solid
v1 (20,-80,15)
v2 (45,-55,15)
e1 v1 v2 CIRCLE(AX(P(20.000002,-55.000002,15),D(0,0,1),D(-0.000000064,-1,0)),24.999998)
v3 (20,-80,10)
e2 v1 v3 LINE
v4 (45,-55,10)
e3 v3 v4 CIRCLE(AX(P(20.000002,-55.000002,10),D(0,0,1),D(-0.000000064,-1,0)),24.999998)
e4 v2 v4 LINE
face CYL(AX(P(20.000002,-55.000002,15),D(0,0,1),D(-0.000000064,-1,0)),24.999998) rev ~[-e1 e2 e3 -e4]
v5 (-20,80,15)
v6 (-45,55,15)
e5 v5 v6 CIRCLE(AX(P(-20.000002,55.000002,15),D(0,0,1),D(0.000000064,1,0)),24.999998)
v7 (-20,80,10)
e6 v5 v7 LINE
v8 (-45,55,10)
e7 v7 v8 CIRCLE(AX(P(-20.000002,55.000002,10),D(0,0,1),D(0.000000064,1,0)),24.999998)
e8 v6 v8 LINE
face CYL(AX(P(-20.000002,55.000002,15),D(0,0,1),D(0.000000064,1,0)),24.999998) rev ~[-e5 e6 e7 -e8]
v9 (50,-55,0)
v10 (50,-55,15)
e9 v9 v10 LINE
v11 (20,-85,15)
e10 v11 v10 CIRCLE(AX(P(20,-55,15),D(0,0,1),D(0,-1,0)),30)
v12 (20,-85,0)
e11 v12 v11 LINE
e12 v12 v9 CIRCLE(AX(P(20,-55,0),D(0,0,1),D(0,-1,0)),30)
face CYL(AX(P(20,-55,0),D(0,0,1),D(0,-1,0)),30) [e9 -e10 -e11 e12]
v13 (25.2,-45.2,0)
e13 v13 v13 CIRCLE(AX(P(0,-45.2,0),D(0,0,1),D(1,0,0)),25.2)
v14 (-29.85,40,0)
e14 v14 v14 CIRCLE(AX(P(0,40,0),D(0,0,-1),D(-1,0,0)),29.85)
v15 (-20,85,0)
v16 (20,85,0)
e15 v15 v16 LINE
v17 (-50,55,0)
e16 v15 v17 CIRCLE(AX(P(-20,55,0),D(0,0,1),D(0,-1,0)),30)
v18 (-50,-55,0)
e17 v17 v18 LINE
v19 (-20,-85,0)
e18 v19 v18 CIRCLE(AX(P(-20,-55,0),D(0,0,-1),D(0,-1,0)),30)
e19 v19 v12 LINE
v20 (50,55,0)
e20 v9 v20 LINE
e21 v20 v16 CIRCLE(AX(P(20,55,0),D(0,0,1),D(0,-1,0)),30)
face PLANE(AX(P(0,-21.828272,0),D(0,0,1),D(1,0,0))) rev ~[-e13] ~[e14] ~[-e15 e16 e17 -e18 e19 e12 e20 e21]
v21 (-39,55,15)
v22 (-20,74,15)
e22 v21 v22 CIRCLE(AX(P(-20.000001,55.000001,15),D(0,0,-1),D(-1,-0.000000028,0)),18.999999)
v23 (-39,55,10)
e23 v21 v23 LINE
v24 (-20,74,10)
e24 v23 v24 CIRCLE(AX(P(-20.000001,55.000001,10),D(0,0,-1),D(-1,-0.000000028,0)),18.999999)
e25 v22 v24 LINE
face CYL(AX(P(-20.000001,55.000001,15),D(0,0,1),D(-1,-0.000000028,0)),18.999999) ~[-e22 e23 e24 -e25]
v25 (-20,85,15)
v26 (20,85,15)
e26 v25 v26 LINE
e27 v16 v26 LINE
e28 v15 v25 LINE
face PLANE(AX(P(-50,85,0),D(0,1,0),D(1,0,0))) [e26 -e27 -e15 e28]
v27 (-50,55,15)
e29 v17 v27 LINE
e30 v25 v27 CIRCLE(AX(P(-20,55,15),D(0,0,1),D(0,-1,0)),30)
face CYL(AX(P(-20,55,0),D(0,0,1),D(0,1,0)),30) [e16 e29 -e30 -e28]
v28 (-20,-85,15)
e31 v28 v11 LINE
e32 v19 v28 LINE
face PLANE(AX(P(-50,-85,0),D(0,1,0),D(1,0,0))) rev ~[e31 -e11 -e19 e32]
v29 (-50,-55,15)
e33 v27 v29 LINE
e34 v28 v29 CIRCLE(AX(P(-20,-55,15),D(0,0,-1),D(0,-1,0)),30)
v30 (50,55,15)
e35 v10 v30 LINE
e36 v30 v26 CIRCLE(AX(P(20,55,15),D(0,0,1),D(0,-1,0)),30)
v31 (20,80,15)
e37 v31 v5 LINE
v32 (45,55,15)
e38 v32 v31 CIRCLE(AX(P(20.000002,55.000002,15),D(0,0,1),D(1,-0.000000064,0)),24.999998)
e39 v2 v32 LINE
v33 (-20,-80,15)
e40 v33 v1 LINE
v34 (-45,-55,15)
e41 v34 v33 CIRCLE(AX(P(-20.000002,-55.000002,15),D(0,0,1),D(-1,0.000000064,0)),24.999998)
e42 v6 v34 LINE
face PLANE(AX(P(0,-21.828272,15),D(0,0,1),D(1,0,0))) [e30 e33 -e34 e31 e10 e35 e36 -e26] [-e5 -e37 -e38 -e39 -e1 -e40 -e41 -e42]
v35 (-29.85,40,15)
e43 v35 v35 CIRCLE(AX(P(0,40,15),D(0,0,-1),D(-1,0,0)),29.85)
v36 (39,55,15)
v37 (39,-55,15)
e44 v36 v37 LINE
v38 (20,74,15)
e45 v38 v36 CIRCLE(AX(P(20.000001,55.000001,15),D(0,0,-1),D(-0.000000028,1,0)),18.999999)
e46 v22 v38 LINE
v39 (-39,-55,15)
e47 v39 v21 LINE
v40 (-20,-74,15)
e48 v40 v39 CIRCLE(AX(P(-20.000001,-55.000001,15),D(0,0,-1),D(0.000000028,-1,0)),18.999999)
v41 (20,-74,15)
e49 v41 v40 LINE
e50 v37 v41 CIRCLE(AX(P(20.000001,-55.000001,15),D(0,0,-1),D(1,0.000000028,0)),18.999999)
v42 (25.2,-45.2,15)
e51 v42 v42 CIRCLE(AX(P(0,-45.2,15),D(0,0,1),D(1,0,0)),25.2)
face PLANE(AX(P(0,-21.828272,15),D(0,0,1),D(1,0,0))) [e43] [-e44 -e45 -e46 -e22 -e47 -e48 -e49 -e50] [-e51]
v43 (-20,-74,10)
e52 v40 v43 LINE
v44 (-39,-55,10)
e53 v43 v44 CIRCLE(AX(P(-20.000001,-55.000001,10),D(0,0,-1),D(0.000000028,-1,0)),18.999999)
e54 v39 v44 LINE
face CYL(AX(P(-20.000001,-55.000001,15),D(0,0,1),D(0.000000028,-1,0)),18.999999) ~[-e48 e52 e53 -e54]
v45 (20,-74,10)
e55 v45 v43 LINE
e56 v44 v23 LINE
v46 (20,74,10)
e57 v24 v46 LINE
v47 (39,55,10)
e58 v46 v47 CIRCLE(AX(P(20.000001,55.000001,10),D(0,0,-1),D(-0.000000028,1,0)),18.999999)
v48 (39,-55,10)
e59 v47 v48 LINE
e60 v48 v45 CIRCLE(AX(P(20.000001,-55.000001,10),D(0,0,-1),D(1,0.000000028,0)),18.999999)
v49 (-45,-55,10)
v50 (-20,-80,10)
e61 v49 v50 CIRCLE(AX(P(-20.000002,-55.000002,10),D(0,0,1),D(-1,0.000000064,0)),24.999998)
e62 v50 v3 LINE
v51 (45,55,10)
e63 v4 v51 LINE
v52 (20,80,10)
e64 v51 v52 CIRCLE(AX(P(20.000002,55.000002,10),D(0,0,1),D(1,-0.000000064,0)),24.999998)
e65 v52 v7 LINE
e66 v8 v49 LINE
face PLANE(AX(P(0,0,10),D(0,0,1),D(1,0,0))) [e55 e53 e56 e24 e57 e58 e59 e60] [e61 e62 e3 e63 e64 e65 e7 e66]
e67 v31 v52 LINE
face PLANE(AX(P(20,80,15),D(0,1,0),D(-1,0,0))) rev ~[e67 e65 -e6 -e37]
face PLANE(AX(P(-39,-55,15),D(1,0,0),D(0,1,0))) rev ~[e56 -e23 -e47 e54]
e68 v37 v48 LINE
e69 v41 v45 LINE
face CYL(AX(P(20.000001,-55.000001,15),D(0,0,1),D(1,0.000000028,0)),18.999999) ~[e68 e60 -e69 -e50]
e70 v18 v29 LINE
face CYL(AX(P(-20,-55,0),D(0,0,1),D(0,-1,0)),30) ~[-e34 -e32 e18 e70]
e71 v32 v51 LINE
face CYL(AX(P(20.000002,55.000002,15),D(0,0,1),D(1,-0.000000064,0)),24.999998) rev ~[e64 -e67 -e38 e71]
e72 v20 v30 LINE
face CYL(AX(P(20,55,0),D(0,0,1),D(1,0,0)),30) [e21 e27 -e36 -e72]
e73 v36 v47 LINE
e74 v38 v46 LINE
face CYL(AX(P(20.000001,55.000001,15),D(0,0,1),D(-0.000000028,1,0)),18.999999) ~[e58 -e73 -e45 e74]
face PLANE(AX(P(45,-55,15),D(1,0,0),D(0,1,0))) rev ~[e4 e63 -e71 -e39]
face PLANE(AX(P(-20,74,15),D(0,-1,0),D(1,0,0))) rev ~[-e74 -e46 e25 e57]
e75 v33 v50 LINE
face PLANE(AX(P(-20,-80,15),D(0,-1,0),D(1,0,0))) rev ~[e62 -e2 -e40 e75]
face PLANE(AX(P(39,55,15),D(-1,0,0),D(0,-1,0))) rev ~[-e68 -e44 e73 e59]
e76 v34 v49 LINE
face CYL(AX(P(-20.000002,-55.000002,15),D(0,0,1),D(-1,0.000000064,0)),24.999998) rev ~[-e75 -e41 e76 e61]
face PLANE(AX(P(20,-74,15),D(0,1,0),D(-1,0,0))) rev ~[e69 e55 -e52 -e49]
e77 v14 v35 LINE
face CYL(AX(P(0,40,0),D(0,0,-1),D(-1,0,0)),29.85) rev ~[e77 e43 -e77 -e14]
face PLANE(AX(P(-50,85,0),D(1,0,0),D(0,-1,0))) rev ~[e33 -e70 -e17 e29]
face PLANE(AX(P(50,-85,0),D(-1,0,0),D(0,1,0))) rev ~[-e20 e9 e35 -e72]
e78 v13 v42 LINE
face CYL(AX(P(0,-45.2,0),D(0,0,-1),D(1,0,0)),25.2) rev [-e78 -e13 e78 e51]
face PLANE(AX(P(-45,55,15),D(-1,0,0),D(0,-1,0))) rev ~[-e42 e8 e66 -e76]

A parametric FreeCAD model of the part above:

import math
import FreeCAD as App
import Part
import Sketcher

V = App.Vector
Q = App.Units.Quantity


def edges_at(feature, points):
    """Names of the edges that pass closest to the given points."""
    edges = feature.Shape.Edges
    near = lambda p: min(range(len(edges)), key=lambda i: edges[i].distToShape(Part.Vertex(*p))[0])
    return sorted({f"Edge{near(p) + 1}" for p in points})


def add_polygon(sketch, points):
    """Adds a closed chain of lines whose ends are joined by coincident constraints."""
    first, n = sketch.GeometryCount, len(points)
    for a, b in zip(points, points[1:] + points[:1]):
        sketch.addGeometry(Part.LineSegment(App.Vector(*a, 0), App.Vector(*b, 0)), False)
    for i in range(n):
        sketch.addConstraint(Sketcher.Constraint("Coincident", first + i, 2, first + (i + 1) % n, 1))

doc = App.newDocument("Part")
body = doc.addObject("PartDesign::Body", "Body")

sketch1 = body.newObject("Sketcher::SketchObject", "Sketch")
sketch1.AttachmentSupport = (doc.getObject("XY_Plane"), [""])
sketch1.MapMode = "FlatFace"
add_polygon(sketch1, [(-50, -85), (50, -85), (50, 85), (-50, 85)])
sketch1.addGeometry(Part.Circle(V(0, 40, 0), V(0, 0, 1), 30), False)
sketch1.addGeometry(Part.Circle(V(0, -45, 0), V(0, 0, 1), 25), False)
sketch1.addConstraint(Sketcher.Constraint("Horizontal", 0))
sketch1.addConstraint(Sketcher.Constraint("Vertical", 1))
sketch1.addConstraint(Sketcher.Constraint("Horizontal", 2))
sketch1.addConstraint(Sketcher.Constraint("Vertical", 3))
sketch1.addConstraint(Sketcher.Constraint("Symmetric", 0, 2, 2, 2, -1, 1))
sketch1.addConstraint(Sketcher.Constraint("PointOnObject", 4, 3, -2))
sketch1.addConstraint(Sketcher.Constraint("PointOnObject", 5, 3, -2))
sketch1.addConstraint(Sketcher.Constraint("Diameter", 4, Q("59.7 mm")))
sketch1.addConstraint(Sketcher.Constraint("Diameter", 5, Q("50.4 mm")))
sketch1.addConstraint(Sketcher.Constraint("DistanceX", 0, 1, 0, 2, Q("100 mm")))
sketch1.addConstraint(Sketcher.Constraint("DistanceY", 1, 1, 1, 2, Q("170 mm")))
sketch1.addConstraint(Sketcher.Constraint("DistanceY", -1, 1, 4, 3, Q("40 mm")))
sketch1.addConstraint(Sketcher.Constraint("DistanceY", 5, 3, -1, 1, Q("45.2 mm")))
pad1 = body.newObject("PartDesign::Pad", "Pad")
pad1.Profile = sketch1
pad1.Length = 15
doc.recompute()

fillet = body.newObject("PartDesign::Fillet", "Fillet")
fillet.Base = (pad1, edges_at(pad1, [
    (-50, 85, 7.5),
    (50, 85, 7.5),
    (-50, -85, 7.5),
    (50, -85, 7.5),
]))
fillet.Radius = 30

sketch2 = body.newObject("Sketcher::SketchObject", "Sketch001")
sketch2.AttachmentSupport = (doc.getObject("XY_Plane"), [""])
sketch2.MapMode = "FlatFace"
sketch2.AttachmentOffset = App.Placement(V(0, 0, 15), App.Rotation())
sketch2.addGeometry(Part.ArcOfCircle(Part.Circle(V(20, 55, 0), V(0, 0, 1), 25), math.radians(0), math.radians(90)), False)
sketch2.addGeometry(Part.LineSegment(V(20, 80, 0), V(-20, 80, 0)), False)
sketch2.addGeometry(Part.ArcOfCircle(Part.Circle(V(-20, 55, 0), V(0, 0, 1), 25), math.radians(90), math.radians(180)), False)
sketch2.addGeometry(Part.LineSegment(V(-45, 55, 0), V(-45, -55, 0)), False)
sketch2.addGeometry(Part.ArcOfCircle(Part.Circle(V(-20, -55, 0), V(0, 0, 1), 25), math.radians(180), math.radians(270)), False)
sketch2.addGeometry(Part.LineSegment(V(-20, -80, 0), V(20, -80, 0)), False)
sketch2.addGeometry(Part.ArcOfCircle(Part.Circle(V(20, -55, 0), V(0, 0, 1), 25), math.radians(-90), math.radians(0)), False)
sketch2.addGeometry(Part.LineSegment(V(45, -55, 0), V(45, 55, 0)), False)
sketch2.addGeometry(Part.ArcOfCircle(Part.Circle(V(-20, 55, 0), V(0, 0, 1), 19), math.radians(90), math.radians(180)), False)
sketch2.addGeometry(Part.LineSegment(V(-20, 74, 0), V(20, 74, 0)), False)
sketch2.addGeometry(Part.ArcOfCircle(Part.Circle(V(20, 55, 0), V(0, 0, 1), 19), math.radians(0), math.radians(90)), False)
sketch2.addGeometry(Part.LineSegment(V(39, 55, 0), V(39, -55, 0)), False)
sketch2.addGeometry(Part.ArcOfCircle(Part.Circle(V(20, -55, 0), V(0, 0, 1), 19), math.radians(-90), math.radians(0)), False)
sketch2.addGeometry(Part.LineSegment(V(20, -74, 0), V(-20, -74, 0)), False)
sketch2.addGeometry(Part.ArcOfCircle(Part.Circle(V(-20, -55, 0), V(0, 0, 1), 19), math.radians(180), math.radians(270)), False)
sketch2.addGeometry(Part.LineSegment(V(-39, -55, 0), V(-39, 55, 0)), False)
sketch2.addConstraint(Sketcher.Constraint("Tangent", 0, 2, 1, 1))
sketch2.addConstraint(Sketcher.Constraint("Tangent", 1, 2, 2, 1))
sketch2.addConstraint(Sketcher.Constraint("Tangent", 2, 2, 3, 1))
sketch2.addConstraint(Sketcher.Constraint("Tangent", 3, 2, 4, 1))
sketch2.addConstraint(Sketcher.Constraint("Tangent", 4, 2, 5, 1))
sketch2.addConstraint(Sketcher.Constraint("Tangent", 5, 2, 6, 1))
sketch2.addConstraint(Sketcher.Constraint("Tangent", 6, 2, 7, 1))
sketch2.addConstraint(Sketcher.Constraint("Tangent", 7, 2, 0, 1))
sketch2.addConstraint(Sketcher.Constraint("Tangent", 8, 1, 9, 1))
sketch2.addConstraint(Sketcher.Constraint("Tangent", 9, 2, 10, 2))
sketch2.addConstraint(Sketcher.Constraint("Tangent", 10, 1, 11, 1))
sketch2.addConstraint(Sketcher.Constraint("Tangent", 11, 2, 12, 2))
sketch2.addConstraint(Sketcher.Constraint("Tangent", 12, 1, 13, 1))
sketch2.addConstraint(Sketcher.Constraint("Tangent", 13, 2, 14, 2))
sketch2.addConstraint(Sketcher.Constraint("Tangent", 14, 1, 15, 1))
sketch2.addConstraint(Sketcher.Constraint("Tangent", 15, 2, 8, 2))
sketch2.addConstraint(Sketcher.Constraint("Horizontal", 1))
sketch2.addConstraint(Sketcher.Constraint("Vertical", 3))
sketch2.addConstraint(Sketcher.Constraint("Horizontal", 5))
sketch2.addConstraint(Sketcher.Constraint("Vertical", 7))
sketch2.addConstraint(Sketcher.Constraint("Horizontal", 9))
sketch2.addConstraint(Sketcher.Constraint("Vertical", 11))
sketch2.addConstraint(Sketcher.Constraint("Horizontal", 13))
sketch2.addConstraint(Sketcher.Constraint("Vertical", 15))
sketch2.addConstraint(Sketcher.Constraint("Coincident", 8, 3, 2, 3))
sketch2.addConstraint(Sketcher.Constraint("Coincident", 10, 3, 0, 3))
sketch2.addConstraint(Sketcher.Constraint("Coincident", 12, 3, 6, 3))
sketch2.addConstraint(Sketcher.Constraint("Equal", 0, 2))
sketch2.addConstraint(Sketcher.Constraint("Equal", 2, 4))
sketch2.addConstraint(Sketcher.Constraint("Equal", 4, 6))
sketch2.addConstraint(Sketcher.Constraint("Equal", 12, 14))
sketch2.addConstraint(Sketcher.Constraint("Symmetric", 0, 3, 4, 3, -1, 1))
sketch2.addConstraint(Sketcher.Constraint("Radius", 0, Q("24.999998 mm")))
sketch2.addConstraint(Sketcher.Constraint("Radius", 8, Q("18.999999 mm")))
sketch2.addConstraint(Sketcher.Constraint("DistanceX", 1, 2, 1, 1, Q("40 mm")))
sketch2.addConstraint(Sketcher.Constraint("DistanceY", 3, 2, 3, 1, Q("110 mm")))
pocket1 = body.newObject("PartDesign::Pocket", "Pocket")
pocket1.Profile = sketch2
pocket1.Length = 5

doc.recompute()
